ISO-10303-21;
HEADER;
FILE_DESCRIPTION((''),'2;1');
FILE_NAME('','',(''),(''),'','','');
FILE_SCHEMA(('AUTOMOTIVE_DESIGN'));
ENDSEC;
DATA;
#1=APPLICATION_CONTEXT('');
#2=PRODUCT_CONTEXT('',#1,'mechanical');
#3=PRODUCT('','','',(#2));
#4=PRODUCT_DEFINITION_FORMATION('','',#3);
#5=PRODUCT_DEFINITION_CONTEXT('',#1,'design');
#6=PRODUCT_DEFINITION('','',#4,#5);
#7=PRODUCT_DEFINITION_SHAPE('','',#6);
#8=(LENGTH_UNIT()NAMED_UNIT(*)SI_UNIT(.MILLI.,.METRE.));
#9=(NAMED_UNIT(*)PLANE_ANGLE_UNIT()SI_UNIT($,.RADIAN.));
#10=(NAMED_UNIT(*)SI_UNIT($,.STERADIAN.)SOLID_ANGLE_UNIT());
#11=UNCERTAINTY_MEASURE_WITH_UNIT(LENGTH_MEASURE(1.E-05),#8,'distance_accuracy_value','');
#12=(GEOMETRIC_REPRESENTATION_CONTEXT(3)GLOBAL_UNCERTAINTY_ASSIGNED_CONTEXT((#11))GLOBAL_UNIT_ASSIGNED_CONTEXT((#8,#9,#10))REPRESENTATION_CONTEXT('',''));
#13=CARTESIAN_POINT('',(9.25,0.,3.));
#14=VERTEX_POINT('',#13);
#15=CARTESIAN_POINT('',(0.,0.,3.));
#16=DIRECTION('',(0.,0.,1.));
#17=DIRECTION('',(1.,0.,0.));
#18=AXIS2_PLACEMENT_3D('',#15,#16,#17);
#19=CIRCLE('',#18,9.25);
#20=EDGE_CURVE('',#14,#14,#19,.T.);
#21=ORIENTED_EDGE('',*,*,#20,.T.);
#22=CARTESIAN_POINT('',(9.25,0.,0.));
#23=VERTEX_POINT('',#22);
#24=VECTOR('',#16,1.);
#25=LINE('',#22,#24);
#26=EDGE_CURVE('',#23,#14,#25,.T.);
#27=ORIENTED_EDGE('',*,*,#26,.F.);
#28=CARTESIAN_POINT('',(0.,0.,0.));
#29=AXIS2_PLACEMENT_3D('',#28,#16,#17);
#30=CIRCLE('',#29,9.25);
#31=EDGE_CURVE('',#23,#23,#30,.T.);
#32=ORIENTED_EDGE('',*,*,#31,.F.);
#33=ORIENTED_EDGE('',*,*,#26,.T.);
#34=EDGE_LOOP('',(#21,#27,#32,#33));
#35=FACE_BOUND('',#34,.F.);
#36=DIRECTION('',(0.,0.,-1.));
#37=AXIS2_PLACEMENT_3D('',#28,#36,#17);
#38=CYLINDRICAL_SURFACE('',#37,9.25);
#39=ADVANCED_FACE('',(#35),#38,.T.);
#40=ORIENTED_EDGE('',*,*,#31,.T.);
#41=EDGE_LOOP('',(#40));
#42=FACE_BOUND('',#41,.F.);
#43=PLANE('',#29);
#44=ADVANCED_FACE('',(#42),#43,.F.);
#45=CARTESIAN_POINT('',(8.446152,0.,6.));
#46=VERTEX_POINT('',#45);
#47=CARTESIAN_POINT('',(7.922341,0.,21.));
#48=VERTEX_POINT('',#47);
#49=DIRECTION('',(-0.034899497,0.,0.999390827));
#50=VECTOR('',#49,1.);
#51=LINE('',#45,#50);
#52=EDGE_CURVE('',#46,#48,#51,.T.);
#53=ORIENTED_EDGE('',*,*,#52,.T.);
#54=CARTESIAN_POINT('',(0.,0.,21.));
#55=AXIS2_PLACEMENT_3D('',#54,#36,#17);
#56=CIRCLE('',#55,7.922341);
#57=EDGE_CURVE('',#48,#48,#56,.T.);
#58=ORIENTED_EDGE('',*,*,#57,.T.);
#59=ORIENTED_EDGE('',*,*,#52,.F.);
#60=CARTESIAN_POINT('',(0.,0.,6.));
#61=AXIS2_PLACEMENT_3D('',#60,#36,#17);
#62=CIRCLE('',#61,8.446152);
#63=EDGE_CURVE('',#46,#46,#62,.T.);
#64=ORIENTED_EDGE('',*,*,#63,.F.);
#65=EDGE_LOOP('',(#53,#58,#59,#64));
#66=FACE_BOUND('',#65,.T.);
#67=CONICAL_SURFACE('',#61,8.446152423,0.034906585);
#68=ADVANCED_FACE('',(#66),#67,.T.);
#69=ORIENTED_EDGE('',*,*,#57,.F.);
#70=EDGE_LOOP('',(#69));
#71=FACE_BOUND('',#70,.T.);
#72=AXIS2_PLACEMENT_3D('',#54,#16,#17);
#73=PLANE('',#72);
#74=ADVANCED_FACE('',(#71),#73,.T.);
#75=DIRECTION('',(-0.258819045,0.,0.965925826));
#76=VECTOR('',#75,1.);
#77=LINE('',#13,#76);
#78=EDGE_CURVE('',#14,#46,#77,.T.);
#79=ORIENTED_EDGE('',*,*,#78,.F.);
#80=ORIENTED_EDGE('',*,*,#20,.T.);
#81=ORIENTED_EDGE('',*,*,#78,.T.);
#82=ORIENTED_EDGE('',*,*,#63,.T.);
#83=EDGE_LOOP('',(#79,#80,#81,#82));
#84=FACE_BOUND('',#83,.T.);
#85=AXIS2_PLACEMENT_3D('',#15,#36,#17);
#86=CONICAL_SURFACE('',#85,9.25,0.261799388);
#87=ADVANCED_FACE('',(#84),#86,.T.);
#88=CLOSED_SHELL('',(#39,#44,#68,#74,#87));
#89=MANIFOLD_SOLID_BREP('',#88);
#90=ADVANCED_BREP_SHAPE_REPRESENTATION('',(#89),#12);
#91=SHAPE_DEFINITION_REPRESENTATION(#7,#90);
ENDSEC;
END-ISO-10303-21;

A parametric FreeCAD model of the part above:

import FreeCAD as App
import Part
import Sketcher
from FreeCAD import Vector
Q = App.Units.Quantity

doc = App.newDocument("Part")
body = doc.addObject("PartDesign::Body", "Body")

sketch1 = body.newObject("Sketcher::SketchObject", "Sketch")
sketch1.AttachmentSupport = (doc.getObject("XY_Plane"), [""])
sketch1.MapMode = "FlatFace"
sketch1.addGeometry(Part.Circle(Vector(0, 0, 0), Vector(0, 0, 1), 9.25), False)
sketch1.addConstraint(Sketcher.Constraint("Coincident", 0, 3, -1, 1))
sketch1.addConstraint(Sketcher.Constraint("Diameter", 0, Q("18.5 mm")))
pad1 = body.newObject("PartDesign::Pad", "Pad")
pad1.Profile = sketch1
pad1.Length = 3

sketch2 = body.newObject("Sketcher::SketchObject", "Sketch001")
sketch2.AttachmentSupport = (doc.getObject("XY_Plane"), [""])
sketch2.MapMode = "FlatFace"
sketch2.AttachmentOffset = App.Placement(Vector(0, 0, 3), App.Rotation())
sketch2.addGeometry(Part.Circle(Vector(0, 0, 0), Vector(0, 0, 1), 9.25), False)
sketch2.addConstraint(Sketcher.Constraint("Coincident", 0, 3, -1, 1))
sketch2.addConstraint(Sketcher.Constraint("Diameter", 0, Q("18.5 mm")))
pad2 = body.newObject("PartDesign::Pad", "Pad001")
pad2.Profile = sketch2
pad2.Length = 3
pad2.TaperAngle = -15

sketch3 = body.newObject("Sketcher::SketchObject", "Sketch002")
sketch3.AttachmentSupport = (doc.getObject("XY_Plane"), [""])
sketch3.MapMode = "FlatFace"
sketch3.AttachmentOffset = App.Placement(Vector(0, 0, 6), App.Rotation())
sketch3.addGeometry(Part.Circle(Vector(0, 0, 0), Vector(0, 0, 1), 8.446152), False)
sketch3.addConstraint(Sketcher.Constraint("Coincident", 0, 3, -1, 1))
sketch3.addConstraint(Sketcher.Constraint("Diameter", 0, Q("16.892305 mm")))
pad3 = body.newObject("PartDesign::Pad", "Pad002")
pad3.Profile = sketch3
pad3.Length = 15
pad3.TaperAngle = -2

doc.recompute()
